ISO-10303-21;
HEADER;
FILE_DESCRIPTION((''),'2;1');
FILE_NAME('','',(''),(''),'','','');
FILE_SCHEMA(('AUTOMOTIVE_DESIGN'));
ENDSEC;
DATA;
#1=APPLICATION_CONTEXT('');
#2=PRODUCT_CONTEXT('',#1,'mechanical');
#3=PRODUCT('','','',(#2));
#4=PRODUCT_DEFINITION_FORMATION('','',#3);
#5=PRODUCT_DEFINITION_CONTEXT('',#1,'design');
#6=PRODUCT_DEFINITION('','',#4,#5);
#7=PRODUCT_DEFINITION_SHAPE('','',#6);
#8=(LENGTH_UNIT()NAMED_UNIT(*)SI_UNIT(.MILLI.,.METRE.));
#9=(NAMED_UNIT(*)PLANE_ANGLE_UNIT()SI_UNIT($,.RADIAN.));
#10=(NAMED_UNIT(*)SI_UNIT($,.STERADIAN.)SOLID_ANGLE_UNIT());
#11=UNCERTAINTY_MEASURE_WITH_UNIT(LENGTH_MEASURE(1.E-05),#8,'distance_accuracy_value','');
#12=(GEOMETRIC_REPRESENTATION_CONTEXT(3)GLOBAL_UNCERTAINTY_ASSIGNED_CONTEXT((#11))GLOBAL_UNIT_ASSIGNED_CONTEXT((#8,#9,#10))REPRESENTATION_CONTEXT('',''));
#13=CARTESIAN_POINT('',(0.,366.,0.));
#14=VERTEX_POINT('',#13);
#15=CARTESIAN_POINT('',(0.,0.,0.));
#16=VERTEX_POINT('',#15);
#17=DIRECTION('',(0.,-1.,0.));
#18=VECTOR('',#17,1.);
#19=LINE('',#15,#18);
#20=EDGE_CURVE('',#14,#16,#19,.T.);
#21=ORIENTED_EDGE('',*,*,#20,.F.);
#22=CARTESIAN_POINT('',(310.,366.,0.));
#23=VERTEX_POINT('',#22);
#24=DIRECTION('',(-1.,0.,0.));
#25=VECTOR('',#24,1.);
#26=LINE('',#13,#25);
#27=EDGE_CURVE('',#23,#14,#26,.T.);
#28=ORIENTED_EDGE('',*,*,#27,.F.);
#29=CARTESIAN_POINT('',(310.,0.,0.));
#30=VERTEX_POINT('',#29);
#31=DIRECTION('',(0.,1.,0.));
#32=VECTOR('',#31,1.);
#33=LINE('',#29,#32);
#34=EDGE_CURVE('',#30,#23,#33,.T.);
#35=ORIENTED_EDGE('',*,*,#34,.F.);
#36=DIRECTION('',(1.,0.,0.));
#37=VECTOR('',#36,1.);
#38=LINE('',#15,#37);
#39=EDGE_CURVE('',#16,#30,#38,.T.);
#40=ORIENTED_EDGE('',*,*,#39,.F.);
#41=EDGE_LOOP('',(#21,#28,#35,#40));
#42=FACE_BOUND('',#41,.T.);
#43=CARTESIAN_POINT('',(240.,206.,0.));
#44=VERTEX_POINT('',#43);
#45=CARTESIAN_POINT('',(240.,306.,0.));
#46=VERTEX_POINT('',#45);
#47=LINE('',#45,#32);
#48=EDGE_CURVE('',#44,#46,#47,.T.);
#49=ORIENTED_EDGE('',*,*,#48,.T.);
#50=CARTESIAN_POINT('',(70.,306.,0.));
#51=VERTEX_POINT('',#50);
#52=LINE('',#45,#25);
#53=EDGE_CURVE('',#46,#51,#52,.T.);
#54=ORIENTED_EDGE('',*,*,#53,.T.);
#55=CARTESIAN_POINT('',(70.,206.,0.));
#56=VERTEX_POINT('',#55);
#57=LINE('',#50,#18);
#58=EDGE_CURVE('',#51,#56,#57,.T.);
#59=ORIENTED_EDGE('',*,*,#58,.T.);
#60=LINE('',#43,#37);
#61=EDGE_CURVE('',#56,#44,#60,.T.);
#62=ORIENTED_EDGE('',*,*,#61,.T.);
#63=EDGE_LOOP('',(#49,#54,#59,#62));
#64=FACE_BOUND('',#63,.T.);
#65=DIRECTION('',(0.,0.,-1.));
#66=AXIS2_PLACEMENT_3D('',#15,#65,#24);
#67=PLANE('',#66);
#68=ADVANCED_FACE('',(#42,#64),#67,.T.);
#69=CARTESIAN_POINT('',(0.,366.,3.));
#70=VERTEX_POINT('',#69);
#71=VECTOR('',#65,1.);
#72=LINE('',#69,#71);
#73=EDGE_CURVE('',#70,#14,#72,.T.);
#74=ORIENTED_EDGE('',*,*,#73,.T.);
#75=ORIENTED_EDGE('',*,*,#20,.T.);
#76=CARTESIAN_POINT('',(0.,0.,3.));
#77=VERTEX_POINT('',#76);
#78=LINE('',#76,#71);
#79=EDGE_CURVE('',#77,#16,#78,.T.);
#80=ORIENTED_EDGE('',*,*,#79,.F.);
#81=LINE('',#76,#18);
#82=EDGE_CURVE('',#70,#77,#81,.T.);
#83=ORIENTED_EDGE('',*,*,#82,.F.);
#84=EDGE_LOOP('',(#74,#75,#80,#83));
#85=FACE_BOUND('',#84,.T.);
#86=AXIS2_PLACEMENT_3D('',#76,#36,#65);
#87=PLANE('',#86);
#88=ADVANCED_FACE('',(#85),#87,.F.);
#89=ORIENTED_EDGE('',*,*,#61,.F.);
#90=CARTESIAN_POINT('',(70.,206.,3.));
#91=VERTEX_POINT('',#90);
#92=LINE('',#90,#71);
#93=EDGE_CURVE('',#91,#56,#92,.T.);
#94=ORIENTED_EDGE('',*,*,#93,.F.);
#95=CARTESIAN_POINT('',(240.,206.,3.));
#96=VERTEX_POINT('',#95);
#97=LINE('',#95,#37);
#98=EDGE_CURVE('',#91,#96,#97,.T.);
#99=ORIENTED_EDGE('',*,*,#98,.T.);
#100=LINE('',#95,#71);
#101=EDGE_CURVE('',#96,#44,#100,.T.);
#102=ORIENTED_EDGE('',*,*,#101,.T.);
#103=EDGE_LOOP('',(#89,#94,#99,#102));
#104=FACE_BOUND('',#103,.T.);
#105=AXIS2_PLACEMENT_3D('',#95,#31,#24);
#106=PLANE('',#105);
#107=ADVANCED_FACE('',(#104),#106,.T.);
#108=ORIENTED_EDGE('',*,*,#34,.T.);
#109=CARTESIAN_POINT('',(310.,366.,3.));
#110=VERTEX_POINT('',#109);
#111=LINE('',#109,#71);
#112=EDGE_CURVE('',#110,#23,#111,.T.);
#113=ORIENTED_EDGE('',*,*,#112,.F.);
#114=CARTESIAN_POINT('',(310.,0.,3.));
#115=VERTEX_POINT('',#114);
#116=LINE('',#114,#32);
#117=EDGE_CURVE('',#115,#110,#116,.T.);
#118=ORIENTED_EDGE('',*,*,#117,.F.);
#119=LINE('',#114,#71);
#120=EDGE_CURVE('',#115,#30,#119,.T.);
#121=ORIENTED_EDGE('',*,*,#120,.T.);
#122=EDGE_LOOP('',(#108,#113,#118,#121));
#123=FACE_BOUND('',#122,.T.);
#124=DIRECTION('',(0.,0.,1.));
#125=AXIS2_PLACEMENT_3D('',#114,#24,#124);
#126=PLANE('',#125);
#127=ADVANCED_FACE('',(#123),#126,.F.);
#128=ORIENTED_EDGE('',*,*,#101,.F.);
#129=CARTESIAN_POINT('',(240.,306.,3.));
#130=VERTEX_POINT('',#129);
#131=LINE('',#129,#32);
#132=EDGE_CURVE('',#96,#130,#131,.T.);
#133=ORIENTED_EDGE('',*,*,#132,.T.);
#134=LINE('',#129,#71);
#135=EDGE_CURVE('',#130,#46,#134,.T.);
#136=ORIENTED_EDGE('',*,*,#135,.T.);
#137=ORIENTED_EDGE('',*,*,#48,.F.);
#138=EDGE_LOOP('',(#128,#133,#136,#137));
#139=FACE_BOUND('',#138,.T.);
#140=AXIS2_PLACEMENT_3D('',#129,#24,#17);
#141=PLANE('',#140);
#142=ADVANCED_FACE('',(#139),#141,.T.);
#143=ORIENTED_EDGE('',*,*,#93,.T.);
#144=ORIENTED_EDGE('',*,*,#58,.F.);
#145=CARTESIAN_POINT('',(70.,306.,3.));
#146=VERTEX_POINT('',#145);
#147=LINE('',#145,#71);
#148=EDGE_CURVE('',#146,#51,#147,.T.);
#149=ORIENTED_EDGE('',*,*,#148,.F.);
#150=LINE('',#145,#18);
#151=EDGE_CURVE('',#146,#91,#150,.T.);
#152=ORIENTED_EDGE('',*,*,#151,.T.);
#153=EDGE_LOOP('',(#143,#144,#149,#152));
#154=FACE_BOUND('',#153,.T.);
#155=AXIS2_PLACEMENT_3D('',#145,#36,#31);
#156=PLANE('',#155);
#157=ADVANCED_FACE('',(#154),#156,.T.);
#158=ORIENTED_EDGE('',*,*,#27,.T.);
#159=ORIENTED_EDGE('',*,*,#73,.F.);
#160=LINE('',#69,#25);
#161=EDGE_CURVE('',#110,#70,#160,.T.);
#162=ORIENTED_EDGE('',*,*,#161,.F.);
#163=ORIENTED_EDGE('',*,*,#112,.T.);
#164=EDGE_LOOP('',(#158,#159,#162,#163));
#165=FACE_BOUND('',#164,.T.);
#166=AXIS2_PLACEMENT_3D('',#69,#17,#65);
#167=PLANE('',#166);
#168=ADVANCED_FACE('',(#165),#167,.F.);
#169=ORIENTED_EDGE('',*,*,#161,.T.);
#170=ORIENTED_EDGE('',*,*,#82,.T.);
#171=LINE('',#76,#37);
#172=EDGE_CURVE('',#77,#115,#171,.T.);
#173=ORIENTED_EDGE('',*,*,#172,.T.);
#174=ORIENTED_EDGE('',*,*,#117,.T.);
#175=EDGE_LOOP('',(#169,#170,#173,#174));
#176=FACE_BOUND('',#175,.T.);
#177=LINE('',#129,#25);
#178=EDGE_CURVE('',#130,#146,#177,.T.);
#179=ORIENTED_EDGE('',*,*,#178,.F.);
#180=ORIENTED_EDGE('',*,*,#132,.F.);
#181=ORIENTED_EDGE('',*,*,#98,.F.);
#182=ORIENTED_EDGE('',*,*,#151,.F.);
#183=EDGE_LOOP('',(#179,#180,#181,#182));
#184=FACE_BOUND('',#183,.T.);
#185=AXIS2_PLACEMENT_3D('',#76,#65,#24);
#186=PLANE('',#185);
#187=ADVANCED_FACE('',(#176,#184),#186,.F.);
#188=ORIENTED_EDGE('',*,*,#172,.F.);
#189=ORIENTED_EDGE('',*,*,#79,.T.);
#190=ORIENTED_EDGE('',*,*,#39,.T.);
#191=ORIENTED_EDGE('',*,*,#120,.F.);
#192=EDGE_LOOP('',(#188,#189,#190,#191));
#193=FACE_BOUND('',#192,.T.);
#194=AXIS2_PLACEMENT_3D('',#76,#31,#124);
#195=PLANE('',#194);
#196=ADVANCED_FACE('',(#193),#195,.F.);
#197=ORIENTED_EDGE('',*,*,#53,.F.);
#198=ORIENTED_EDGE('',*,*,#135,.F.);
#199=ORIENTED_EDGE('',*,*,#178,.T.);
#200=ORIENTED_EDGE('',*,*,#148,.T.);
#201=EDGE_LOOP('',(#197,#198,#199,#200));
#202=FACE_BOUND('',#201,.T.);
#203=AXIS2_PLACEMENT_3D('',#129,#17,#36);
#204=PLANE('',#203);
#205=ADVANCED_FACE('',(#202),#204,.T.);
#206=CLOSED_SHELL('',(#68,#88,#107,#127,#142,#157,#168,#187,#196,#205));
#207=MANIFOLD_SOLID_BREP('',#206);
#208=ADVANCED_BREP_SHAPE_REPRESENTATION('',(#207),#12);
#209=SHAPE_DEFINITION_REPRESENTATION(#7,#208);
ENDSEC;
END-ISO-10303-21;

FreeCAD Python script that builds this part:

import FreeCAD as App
import Part
import Sketcher
from FreeCAD import Vector

doc = App.newDocument("Part")
body = doc.addObject("PartDesign::Body", "Body")

# Sketch on XY plane
sketch1 = body.newObject("Sketcher::SketchObject", "Sketch")
sketch1.AttachmentSupport = (doc.getObject("XY_Plane"), [""])
sketch1.MapMode = "FlatFace"
sketch1.addGeometry(Part.LineSegment(Vector(0, 366, 0), Vector(0, 0, 0)), False)
sketch1.addGeometry(Part.LineSegment(Vector(0, 0, 0), Vector(310, 0, 0)), False)
sketch1.addGeometry(Part.LineSegment(Vector(310, 0, 0), Vector(310, 366, 0)), False)
sketch1.addGeometry(Part.LineSegment(Vector(310, 366, 0), Vector(0, 366, 0)), False)
sketch1.addGeometry(Part.LineSegment(Vector(240, 206, 0), Vector(70, 206, 0)), False)
sketch1.addGeometry(Part.LineSegment(Vector(70, 206, 0), Vector(70, 306, 0)), False)
sketch1.addGeometry(Part.LineSegment(Vector(70, 306, 0), Vector(240, 306, 0)), False)
sketch1.addGeometry(Part.LineSegment(Vector(240, 306, 0), Vector(240, 206, 0)), False)
sketch1.addConstraint(Sketcher.Constraint("Coincident", 0, 2, 1, 1))
sketch1.addConstraint(Sketcher.Constraint("Coincident", 1, 2, 2, 1))
sketch1.addConstraint(Sketcher.Constraint("Coincident", 2, 2, 3, 1))
sketch1.addConstraint(Sketcher.Constraint("Coincident", 3, 2, 0, 1))
sketch1.addConstraint(Sketcher.Constraint("Coincident", 4, 2, 5, 1))
sketch1.addConstraint(Sketcher.Constraint("Coincident", 5, 2, 6, 1))
sketch1.addConstraint(Sketcher.Constraint("Coincident", 6, 2, 7, 1))
sketch1.addConstraint(Sketcher.Constraint("Coincident", 7, 2, 4, 1))
sketch1.addConstraint(Sketcher.Constraint("Vertical", 0))
sketch1.addConstraint(Sketcher.Constraint("Horizontal", 1))
sketch1.addConstraint(Sketcher.Constraint("Vertical", 2))
sketch1.addConstraint(Sketcher.Constraint("Horizontal", 3))
sketch1.addConstraint(Sketcher.Constraint("Horizontal", 4))
sketch1.addConstraint(Sketcher.Constraint("Vertical", 5))
sketch1.addConstraint(Sketcher.Constraint("Horizontal", 6))
sketch1.addConstraint(Sketcher.Constraint("Vertical", 7))
sketch1.addConstraint(Sketcher.Constraint("Coincident", 0, 2, -1, 1))
sketch1.addConstraint(Sketcher.Constraint("DistanceX", 1, 1, 1, 2, 310.0))
sketch1.addConstraint(Sketcher.Constraint("DistanceX", 4, 2, 4, 1, 170.0))
sketch1.addConstraint(Sketcher.Constraint("DistanceY", 0, 2, 0, 1, 366.0))
sketch1.addConstraint(Sketcher.Constraint("DistanceY", 5, 1, 5, 2, 100.0))
sketch1.addConstraint(Sketcher.Constraint("DistanceX", -1, 1, 4, 2, 70.0))
sketch1.addConstraint(Sketcher.Constraint("DistanceY", -1, 1, 4, 2, 206.0))
pad1 = body.newObject("PartDesign::Pad", "Pad")
pad1.Profile = sketch1
pad1.Length = 3

doc.recompute()
